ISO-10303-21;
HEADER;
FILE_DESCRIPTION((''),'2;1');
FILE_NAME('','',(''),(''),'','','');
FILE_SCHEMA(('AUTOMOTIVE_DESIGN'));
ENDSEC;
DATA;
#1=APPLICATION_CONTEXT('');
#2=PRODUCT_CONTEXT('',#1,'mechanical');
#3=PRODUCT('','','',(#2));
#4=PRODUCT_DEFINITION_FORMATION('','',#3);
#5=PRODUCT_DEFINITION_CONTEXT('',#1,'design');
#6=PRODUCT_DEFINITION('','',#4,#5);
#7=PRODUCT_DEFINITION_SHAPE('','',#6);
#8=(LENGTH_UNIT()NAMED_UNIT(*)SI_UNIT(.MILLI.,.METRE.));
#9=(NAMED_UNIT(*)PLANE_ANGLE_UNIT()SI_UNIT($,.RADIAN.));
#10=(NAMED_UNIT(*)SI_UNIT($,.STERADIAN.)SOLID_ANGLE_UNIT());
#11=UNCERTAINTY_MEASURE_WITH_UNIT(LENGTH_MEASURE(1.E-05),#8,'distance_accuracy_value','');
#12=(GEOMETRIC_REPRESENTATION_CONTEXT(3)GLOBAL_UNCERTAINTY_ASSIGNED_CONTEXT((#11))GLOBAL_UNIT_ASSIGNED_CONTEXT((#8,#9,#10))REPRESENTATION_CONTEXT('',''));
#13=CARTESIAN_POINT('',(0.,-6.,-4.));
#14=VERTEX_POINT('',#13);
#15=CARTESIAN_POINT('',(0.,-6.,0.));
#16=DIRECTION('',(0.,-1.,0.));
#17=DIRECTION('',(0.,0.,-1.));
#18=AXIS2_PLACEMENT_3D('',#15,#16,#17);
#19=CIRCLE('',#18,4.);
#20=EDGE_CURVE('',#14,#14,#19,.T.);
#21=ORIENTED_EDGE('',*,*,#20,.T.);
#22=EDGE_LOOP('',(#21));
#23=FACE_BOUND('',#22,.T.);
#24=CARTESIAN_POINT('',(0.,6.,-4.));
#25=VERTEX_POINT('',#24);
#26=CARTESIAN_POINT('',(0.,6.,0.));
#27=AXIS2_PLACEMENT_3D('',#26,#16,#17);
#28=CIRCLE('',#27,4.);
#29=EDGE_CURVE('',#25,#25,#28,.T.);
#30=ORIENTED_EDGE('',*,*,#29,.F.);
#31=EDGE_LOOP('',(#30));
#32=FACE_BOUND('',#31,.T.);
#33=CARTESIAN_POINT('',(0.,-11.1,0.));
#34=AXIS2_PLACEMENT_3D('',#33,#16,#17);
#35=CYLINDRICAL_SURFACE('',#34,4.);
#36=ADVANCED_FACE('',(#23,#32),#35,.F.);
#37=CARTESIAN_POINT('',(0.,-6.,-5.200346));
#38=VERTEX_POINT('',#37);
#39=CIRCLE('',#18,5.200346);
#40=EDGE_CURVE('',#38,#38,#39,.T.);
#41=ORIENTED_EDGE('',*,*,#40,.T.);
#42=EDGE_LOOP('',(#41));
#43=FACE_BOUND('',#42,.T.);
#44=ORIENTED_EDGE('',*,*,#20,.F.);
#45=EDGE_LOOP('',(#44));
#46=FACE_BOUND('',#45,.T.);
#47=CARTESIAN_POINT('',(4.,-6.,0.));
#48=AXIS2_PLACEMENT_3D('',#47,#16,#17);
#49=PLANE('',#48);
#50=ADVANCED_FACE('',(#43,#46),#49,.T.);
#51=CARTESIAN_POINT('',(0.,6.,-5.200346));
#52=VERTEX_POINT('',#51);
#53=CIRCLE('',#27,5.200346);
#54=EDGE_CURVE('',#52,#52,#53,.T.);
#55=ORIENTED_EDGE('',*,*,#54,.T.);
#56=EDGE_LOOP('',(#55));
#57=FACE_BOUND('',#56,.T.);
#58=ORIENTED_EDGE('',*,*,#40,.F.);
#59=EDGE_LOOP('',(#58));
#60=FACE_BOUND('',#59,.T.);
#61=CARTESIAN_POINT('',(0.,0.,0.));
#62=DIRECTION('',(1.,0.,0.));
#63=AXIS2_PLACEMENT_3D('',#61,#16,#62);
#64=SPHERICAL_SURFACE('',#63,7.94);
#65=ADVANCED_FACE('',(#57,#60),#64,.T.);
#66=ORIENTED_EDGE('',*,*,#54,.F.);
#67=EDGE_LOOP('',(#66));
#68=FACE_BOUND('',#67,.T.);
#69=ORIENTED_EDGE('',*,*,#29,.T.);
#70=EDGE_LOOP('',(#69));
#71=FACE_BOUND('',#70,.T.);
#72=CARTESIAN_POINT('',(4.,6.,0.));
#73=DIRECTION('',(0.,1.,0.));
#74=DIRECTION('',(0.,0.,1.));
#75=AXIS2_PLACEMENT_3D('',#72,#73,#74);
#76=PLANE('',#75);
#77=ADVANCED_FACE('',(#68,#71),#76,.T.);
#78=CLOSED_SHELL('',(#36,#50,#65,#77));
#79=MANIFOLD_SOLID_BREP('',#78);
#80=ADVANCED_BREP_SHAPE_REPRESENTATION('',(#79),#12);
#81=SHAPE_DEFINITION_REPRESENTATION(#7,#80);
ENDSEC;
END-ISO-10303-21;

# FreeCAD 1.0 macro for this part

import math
import FreeCAD as App
import Part
import Sketcher
from FreeCAD import Vector

doc = App.newDocument("Part")
body = doc.addObject("PartDesign::Body", "Body")

sketch1 = body.newObject("Sketcher::SketchObject", "Sketch")
sketch1.AttachmentSupport = (doc.getObject("XY_Plane"), [""])
sketch1.MapMode = "FlatFace"
sketch1.addGeometry(Part.LineSegment(Vector(4, 6, 0), Vector(4, -6, 0)), False)
sketch1.addGeometry(Part.LineSegment(Vector(4, -6, 0), Vector(5.200346, -6, 0)), False)
sketch1.addGeometry(Part.ArcOfCircle(Part.Circle(Vector(0, 0, 0), Vector(0, 0, 1), 7.94), math.radians(-49.083729), math.radians(49.083729)), False)
sketch1.addGeometry(Part.LineSegment(Vector(5.200346, 6, 0), Vector(4, 6, 0)), False)
sketch1.addConstraint(Sketcher.Constraint("Coincident", 0, 2, 1, 1))
sketch1.addConstraint(Sketcher.Constraint("Coincident", 1, 2, 2, 1))
sketch1.addConstraint(Sketcher.Constraint("Coincident", 2, 2, 3, 1))
sketch1.addConstraint(Sketcher.Constraint("Coincident", 3, 2, 0, 1))
sketch1.addConstraint(Sketcher.Constraint("Vertical", 0))
sketch1.addConstraint(Sketcher.Constraint("Horizontal", 1))
sketch1.addConstraint(Sketcher.Constraint("Horizontal", 3))
sketch1.addConstraint(Sketcher.Constraint("Coincident", 2, 3, -1, 1))
sketch1.addConstraint(Sketcher.Constraint("Vertical", 1, 2, 2, 2))
sketch1.addConstraint(Sketcher.Constraint("DistanceY", 0, 2, 0, 1, 12.0))
sketch1.addConstraint(Sketcher.Constraint("Radius", 2, 7.94))
sketch1.addConstraint(Sketcher.Constraint("DistanceX", -1, 1, 0, 2, 4.0))
revolution = body.newObject("PartDesign::Revolution", "Revolution")
revolution.Profile = sketch1
revolution.ReferenceAxis = (sketch1, ["V_Axis"])
revolution.Angle = 360

doc.recompute()
